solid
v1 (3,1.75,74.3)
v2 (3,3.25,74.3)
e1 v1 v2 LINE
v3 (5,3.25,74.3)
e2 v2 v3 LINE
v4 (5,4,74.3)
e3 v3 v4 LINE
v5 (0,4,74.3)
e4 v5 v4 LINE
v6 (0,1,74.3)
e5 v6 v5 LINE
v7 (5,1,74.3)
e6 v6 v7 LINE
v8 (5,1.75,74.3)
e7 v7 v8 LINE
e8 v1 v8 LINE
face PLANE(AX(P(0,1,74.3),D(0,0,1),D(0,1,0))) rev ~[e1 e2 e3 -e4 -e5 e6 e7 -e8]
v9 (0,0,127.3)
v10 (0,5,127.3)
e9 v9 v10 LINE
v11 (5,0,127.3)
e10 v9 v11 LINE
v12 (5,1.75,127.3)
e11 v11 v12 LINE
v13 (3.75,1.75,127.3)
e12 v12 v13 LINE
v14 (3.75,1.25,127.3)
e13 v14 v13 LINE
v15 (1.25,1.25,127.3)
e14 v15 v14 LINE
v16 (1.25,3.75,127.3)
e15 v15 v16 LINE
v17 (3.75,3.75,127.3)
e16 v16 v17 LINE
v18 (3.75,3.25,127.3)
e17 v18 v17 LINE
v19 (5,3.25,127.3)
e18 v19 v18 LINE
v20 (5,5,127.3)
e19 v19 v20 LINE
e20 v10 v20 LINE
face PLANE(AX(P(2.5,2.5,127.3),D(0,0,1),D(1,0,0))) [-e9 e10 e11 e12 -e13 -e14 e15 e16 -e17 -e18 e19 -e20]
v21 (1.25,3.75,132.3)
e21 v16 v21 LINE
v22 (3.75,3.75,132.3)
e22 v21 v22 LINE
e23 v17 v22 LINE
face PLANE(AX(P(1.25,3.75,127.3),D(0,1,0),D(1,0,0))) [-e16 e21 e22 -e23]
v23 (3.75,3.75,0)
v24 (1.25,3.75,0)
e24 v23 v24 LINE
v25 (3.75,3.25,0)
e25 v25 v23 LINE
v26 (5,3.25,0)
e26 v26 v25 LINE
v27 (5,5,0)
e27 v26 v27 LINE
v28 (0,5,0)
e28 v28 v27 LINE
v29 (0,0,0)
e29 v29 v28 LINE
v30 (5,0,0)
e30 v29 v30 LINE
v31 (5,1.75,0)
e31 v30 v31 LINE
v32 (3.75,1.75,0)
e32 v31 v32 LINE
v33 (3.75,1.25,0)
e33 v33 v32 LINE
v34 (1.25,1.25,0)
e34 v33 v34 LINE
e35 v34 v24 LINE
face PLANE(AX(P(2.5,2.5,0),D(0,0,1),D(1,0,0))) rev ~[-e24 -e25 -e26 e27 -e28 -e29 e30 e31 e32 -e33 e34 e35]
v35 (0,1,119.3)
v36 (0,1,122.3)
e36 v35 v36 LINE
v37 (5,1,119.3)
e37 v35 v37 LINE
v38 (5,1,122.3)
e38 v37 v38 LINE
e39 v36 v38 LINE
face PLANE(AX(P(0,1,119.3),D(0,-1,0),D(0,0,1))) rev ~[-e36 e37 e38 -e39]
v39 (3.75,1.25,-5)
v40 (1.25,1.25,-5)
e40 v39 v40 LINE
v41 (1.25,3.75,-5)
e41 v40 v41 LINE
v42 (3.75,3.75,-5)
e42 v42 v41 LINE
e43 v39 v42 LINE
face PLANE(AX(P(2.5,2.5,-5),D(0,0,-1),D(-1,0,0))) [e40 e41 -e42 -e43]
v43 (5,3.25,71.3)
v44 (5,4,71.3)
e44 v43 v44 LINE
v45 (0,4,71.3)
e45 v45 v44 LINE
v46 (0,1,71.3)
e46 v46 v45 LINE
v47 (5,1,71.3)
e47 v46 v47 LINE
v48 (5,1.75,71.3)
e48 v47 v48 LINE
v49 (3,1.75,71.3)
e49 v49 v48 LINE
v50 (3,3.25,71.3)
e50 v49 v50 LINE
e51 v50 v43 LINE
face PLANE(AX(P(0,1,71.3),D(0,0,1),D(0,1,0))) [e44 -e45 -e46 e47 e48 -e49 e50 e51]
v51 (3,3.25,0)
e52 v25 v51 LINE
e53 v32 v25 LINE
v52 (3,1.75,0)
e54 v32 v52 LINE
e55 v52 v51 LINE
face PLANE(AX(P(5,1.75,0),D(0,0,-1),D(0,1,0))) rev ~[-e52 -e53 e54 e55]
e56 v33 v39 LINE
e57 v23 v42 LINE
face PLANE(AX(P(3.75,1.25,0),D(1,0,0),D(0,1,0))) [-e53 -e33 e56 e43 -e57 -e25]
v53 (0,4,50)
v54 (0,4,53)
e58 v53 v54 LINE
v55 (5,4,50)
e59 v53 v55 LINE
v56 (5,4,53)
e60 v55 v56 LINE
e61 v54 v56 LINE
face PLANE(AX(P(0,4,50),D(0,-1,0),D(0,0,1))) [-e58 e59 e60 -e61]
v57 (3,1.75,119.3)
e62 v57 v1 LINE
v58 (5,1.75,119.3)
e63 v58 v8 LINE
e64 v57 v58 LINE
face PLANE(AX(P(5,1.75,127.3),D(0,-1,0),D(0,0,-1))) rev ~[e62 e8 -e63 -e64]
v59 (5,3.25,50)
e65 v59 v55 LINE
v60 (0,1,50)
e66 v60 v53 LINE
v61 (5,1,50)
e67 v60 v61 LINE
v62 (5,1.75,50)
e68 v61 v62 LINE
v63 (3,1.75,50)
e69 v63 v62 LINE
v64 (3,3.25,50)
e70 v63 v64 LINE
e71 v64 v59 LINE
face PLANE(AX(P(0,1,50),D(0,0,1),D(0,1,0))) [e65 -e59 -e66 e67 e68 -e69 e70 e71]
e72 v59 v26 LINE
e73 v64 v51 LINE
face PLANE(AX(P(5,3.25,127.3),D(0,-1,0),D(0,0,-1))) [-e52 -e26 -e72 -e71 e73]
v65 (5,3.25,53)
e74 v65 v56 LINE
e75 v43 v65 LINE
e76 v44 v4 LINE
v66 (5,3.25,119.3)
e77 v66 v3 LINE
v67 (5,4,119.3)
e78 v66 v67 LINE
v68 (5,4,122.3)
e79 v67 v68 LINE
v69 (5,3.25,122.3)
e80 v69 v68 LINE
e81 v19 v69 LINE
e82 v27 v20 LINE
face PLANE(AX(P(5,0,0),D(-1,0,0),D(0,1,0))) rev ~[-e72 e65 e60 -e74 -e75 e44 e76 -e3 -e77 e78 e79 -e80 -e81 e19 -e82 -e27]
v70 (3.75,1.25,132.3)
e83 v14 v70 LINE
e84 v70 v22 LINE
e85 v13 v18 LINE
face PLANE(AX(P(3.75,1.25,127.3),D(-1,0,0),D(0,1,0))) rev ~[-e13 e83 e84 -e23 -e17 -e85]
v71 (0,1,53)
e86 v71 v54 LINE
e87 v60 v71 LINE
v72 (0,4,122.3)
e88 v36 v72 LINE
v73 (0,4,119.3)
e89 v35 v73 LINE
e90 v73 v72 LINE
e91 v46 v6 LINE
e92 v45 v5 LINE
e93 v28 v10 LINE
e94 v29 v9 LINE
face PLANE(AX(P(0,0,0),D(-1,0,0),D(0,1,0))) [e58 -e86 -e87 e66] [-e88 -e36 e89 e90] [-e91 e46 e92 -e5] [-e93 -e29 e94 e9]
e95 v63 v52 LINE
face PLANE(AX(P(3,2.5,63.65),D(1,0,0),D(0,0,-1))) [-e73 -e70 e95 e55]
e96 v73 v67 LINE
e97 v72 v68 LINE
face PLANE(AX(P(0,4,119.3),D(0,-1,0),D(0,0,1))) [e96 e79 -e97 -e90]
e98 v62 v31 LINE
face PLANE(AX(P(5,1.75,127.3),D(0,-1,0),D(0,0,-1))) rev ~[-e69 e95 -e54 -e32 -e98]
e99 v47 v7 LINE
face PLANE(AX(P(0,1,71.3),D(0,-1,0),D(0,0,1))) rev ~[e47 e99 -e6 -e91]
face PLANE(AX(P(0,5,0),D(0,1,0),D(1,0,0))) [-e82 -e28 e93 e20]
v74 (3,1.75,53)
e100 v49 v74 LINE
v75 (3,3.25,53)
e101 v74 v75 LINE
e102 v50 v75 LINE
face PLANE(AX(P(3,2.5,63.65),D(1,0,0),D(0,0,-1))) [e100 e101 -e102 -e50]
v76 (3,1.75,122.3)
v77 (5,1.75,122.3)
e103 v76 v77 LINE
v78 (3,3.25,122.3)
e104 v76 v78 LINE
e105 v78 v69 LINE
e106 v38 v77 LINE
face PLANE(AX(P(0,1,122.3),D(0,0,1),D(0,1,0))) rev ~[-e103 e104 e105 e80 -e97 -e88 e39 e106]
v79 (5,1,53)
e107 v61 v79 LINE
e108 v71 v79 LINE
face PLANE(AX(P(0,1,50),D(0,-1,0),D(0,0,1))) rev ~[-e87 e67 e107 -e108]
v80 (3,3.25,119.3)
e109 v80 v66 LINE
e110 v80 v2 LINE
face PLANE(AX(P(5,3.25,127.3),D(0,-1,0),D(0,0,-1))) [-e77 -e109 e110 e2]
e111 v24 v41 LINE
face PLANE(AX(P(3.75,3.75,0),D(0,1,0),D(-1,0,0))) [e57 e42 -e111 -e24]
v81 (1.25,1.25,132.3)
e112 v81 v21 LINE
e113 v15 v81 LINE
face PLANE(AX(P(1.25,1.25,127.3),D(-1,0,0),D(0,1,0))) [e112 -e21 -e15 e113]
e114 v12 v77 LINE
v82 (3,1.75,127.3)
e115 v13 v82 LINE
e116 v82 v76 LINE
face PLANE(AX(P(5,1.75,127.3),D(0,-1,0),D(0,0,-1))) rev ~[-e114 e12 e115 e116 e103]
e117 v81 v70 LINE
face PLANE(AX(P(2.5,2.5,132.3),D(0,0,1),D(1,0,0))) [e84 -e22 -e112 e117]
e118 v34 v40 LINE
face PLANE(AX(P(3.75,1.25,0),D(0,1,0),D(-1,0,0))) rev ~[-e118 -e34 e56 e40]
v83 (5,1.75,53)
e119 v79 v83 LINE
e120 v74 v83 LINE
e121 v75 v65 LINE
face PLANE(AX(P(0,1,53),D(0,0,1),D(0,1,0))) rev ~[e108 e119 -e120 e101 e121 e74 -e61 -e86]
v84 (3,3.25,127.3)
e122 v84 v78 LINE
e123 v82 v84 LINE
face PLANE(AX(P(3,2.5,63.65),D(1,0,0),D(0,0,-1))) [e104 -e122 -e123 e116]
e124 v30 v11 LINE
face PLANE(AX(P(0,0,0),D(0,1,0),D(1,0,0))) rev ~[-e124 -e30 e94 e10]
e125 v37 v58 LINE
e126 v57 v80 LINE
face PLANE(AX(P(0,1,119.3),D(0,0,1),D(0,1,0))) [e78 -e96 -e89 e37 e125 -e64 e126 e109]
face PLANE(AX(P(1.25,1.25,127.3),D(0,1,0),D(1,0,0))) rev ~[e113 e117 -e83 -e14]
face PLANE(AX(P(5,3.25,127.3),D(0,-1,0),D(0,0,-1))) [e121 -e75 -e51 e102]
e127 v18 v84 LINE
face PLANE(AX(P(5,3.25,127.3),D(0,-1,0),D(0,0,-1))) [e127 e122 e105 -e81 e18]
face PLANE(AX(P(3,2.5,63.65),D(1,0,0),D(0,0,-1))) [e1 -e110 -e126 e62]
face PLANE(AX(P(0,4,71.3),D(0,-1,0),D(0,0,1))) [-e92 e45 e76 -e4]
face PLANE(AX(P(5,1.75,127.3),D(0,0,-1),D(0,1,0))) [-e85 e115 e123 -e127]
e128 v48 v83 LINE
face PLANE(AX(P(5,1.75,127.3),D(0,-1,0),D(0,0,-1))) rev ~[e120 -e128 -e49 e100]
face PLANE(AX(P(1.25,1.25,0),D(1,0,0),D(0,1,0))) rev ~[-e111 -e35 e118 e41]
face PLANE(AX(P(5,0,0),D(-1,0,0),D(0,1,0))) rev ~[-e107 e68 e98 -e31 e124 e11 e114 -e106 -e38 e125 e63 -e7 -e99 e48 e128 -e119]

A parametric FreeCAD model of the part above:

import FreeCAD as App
import Part
import Sketcher
from FreeCAD import Vector

doc = App.newDocument("Part")
body = doc.addObject("PartDesign::Body", "Body")

# Sketch on XY plane
sketch1 = doc.addObject("Sketcher::SketchObject", "Sketch")
body.addObject(sketch1)
sketch1.AttachmentSupport = (doc.XY_Plane, [""])
sketch1.MapMode = "FlatFace"
sketch1.addGeometry(Part.LineSegment(Vector(0, 5, 0), Vector(0, 0, 0)), False)
sketch1.addGeometry(Part.LineSegment(Vector(0, 0, 0), Vector(5, 0, 0)), False)
sketch1.addGeometry(Part.LineSegment(Vector(5, 0, 0), Vector(5, 5, 0)), False)
sketch1.addGeometry(Part.LineSegment(Vector(5, 5, 0), Vector(0, 5, 0)), False)
sketch1.addConstraint(Sketcher.Constraint("Coincident", 0, 2, 1, 1))
sketch1.addConstraint(Sketcher.Constraint("Coincident", 1, 2, 2, 1))
sketch1.addConstraint(Sketcher.Constraint("Coincident", 2, 2, 3, 1))
sketch1.addConstraint(Sketcher.Constraint("Coincident", 3, 2, 0, 1))
sketch1.addConstraint(Sketcher.Constraint("Vertical", 0))
sketch1.addConstraint(Sketcher.Constraint("Horizontal", 1))
sketch1.addConstraint(Sketcher.Constraint("Vertical", 2))
sketch1.addConstraint(Sketcher.Constraint("Horizontal", 3))
sketch1.addConstraint(Sketcher.Constraint("Coincident", 0, 2, -1, 1))
sketch1.addConstraint(Sketcher.Constraint("Equal", 3, 0))
sketch1.addConstraint(Sketcher.Constraint("DistanceX", 1, 1, 1, 2, 5.0))
pad1 = doc.addObject("PartDesign::Pad", "Pad")
body.addObject(pad1)
pad1.Profile = sketch1
pad1.Length = 127.3

# Sketch on XY plane
sketch2 = doc.addObject("Sketcher::SketchObject", "Sketch001")
body.addObject(sketch2)
sketch2.AttachmentSupport = (doc.XY_Plane, [""])
sketch2.MapMode = "FlatFace"
sketch2.addGeometry(Part.LineSegment(Vector(3.75, 3.75, 0), Vector(3.75, 1.25, 0)), False)
sketch2.addGeometry(Part.LineSegment(Vector(3.75, 1.25, 0), Vector(1.25, 1.25, 0)), False)
sketch2.addGeometry(Part.LineSegment(Vector(1.25, 1.25, 0), Vector(1.25, 3.75, 0)), False)
sketch2.addGeometry(Part.LineSegment(Vector(1.25, 3.75, 0), Vector(3.75, 3.75, 0)), False)
sketch2.addConstraint(Sketcher.Constraint("Coincident", 0, 2, 1, 1))
sketch2.addConstraint(Sketcher.Constraint("Coincident", 1, 2, 2, 1))
sketch2.addConstraint(Sketcher.Constraint("Coincident", 2, 2, 3, 1))
sketch2.addConstraint(Sketcher.Constraint("Coincident", 3, 2, 0, 1))
sketch2.addConstraint(Sketcher.Constraint("Vertical", 0))
sketch2.addConstraint(Sketcher.Constraint("Horizontal", 1))
sketch2.addConstraint(Sketcher.Constraint("Vertical", 2))
sketch2.addConstraint(Sketcher.Constraint("Horizontal", 3))
sketch2.addConstraint(Sketcher.Constraint("Equal", 3, 0))
sketch2.addConstraint(Sketcher.Constraint("DistanceX", 1, 2, 1, 1, 2.5))
sketch2.addConstraint(Sketcher.Constraint("DistanceX", -1, 1, 0, 2, 3.75))
sketch2.addConstraint(Sketcher.Constraint("DistanceY", -1, 1, 0, 2, 1.25))
pad2 = doc.addObject("PartDesign::Pad", "Pad001")
body.addObject(pad2)
pad2.Profile = sketch2
pad2.Length = 5
pad2.Reversed = True

# Sketch on XY plane
sketch3 = doc.addObject("Sketcher::SketchObject", "Sketch002")
body.addObject(sketch3)
sketch3.AttachmentSupport = (doc.XY_Plane, [""])
sketch3.MapMode = "FlatFace"
sketch3.AttachmentOffset = App.Placement(Vector(0, 0, 127.3), App.Rotation())
sketch3.addGeometry(Part.LineSegment(Vector(1.25, 3.75, 0), Vector(1.25, 1.25, 0)), False)
sketch3.addGeometry(Part.LineSegment(Vector(1.25, 1.25, 0), Vector(3.75, 1.25, 0)), False)
sketch3.addGeometry(Part.LineSegment(Vector(3.75, 1.25, 0), Vector(3.75, 3.75, 0)), False)
sketch3.addGeometry(Part.LineSegment(Vector(3.75, 3.75, 0), Vector(1.25, 3.75, 0)), False)
sketch3.addConstraint(Sketcher.Constraint("Coincident", 0, 2, 1, 1))
sketch3.addConstraint(Sketcher.Constraint("Coincident", 1, 2, 2, 1))
sketch3.addConstraint(Sketcher.Constraint("Coincident", 2, 2, 3, 1))
sketch3.addConstraint(Sketcher.Constraint("Coincident", 3, 2, 0, 1))
sketch3.addConstraint(Sketcher.Constraint("Vertical", 0))
sketch3.addConstraint(Sketcher.Constraint("Horizontal", 1))
sketch3.addConstraint(Sketcher.Constraint("Vertical", 2))
sketch3.addConstraint(Sketcher.Constraint("Horizontal", 3))
sketch3.addConstraint(Sketcher.Constraint("Equal", 3, 0))
sketch3.addConstraint(Sketcher.Constraint("DistanceX", 1, 1, 1, 2, 2.5))
sketch3.addConstraint(Sketcher.Constraint("DistanceX", -1, 1, 0, 2, 1.25))
sketch3.addConstraint(Sketcher.Constraint("DistanceY", -1, 1, 0, 2, 1.25))
pad3 = doc.addObject("PartDesign::Pad", "Pad002")
body.addObject(pad3)
pad3.Profile = sketch3
pad3.Length = 5

# Sketch on YZ plane
sketch4 = doc.addObject("Sketcher::SketchObject", "Sketch003")
body.addObject(sketch4)
sketch4.AttachmentSupport = (doc.YZ_Plane, [""])
sketch4.MapMode = "FlatFace"
sketch4.addGeometry(Part.LineSegment(Vector(4, 119.3, 0), Vector(1, 119.3, 0)), False)
sketch4.addGeometry(Part.LineSegment(Vector(1, 119.3, 0), Vector(1, 122.3, 0)), False)
sketch4.addGeometry(Part.LineSegment(Vector(1, 122.3, 0), Vector(4, 122.3, 0)), False)
sketch4.addGeometry(Part.LineSegment(Vector(4, 122.3, 0), Vector(4, 119.3, 0)), False)
sketch4.addGeometry(Part.LineSegment(Vector(4, 50, 0), Vector(1, 50, 0)), False)
sketch4.addGeometry(Part.LineSegment(Vector(1, 50, 0), Vector(1, 53, 0)), False)
sketch4.addGeometry(Part.LineSegment(Vector(1, 53, 0), Vector(4, 53, 0)), False)
sketch4.addGeometry(Part.LineSegment(Vector(4, 53, 0), Vector(4, 50, 0)), False)
sketch4.addGeometry(Part.LineSegment(Vector(4, 71.3, 0), Vector(1, 71.3, 0)), False)
sketch4.addGeometry(Part.LineSegment(Vector(1, 71.3, 0), Vector(1, 74.3, 0)), False)
sketch4.addGeometry(Part.LineSegment(Vector(1, 74.3, 0), Vector(4, 74.3, 0)), False)
sketch4.addGeometry(Part.LineSegment(Vector(4, 74.3, 0), Vector(4, 71.3, 0)), False)
sketch4.addConstraint(Sketcher.Constraint("Coincident", 0, 2, 1, 1))
sketch4.addConstraint(Sketcher.Constraint("Coincident", 1, 2, 2, 1))
sketch4.addConstraint(Sketcher.Constraint("Coincident", 2, 2, 3, 1))
sketch4.addConstraint(Sketcher.Constraint("Coincident", 3, 2, 0, 1))
sketch4.addConstraint(Sketcher.Constraint("Coincident", 4, 2, 5, 1))
sketch4.addConstraint(Sketcher.Constraint("Coincident", 5, 2, 6, 1))
sketch4.addConstraint(Sketcher.Constraint("Coincident", 6, 2, 7, 1))
sketch4.addConstraint(Sketcher.Constraint("Coincident", 7, 2, 4, 1))
sketch4.addConstraint(Sketcher.Constraint("Coincident", 8, 2, 9, 1))
sketch4.addConstraint(Sketcher.Constraint("Coincident", 9, 2, 10, 1))
sketch4.addConstraint(Sketcher.Constraint("Coincident", 10, 2, 11, 1))
sketch4.addConstraint(Sketcher.Constraint("Coincident", 11, 2, 8, 1))
sketch4.addConstraint(Sketcher.Constraint("Horizontal", 0))
sketch4.addConstraint(Sketcher.Constraint("Vertical", 1))
sketch4.addConstraint(Sketcher.Constraint("Horizontal", 2))
sketch4.addConstraint(Sketcher.Constraint("Vertical", 3))
sketch4.addConstraint(Sketcher.Constraint("Horizontal", 4))
sketch4.addConstraint(Sketcher.Constraint("Vertical", 5))
sketch4.addConstraint(Sketcher.Constraint("Horizontal", 6))
sketch4.addConstraint(Sketcher.Constraint("Vertical", 7))
sketch4.addConstraint(Sketcher.Constraint("Horizontal", 8))
sketch4.addConstraint(Sketcher.Constraint("Vertical", 9))
sketch4.addConstraint(Sketcher.Constraint("Horizontal", 10))
sketch4.addConstraint(Sketcher.Constraint("Vertical", 11))
sketch4.addConstraint(Sketcher.Constraint("Vertical", 1, 2, 4, 2))
sketch4.addConstraint(Sketcher.Constraint("Vertical", 3, 2, 6, 2))
sketch4.addConstraint(Sketcher.Constraint("Vertical", 5, 2, 8, 2))
sketch4.addConstraint(Sketcher.Constraint("Vertical", 7, 2, 10, 2))
sketch4.addConstraint(Sketcher.Constraint("Equal", 10, 1))
sketch4.addConstraint(Sketcher.Constraint("Equal", 3, 5))
sketch4.addConstraint(Sketcher.Constraint("Equal", 7, 9))
sketch4.addConstraint(Sketcher.Constraint("DistanceX", 0, 2, 0, 1, 3.0))
sketch4.addConstraint(Sketcher.Constraint("DistanceX", -1, 1, 0, 2, 1.0))
sketch4.addConstraint(Sketcher.Constraint("DistanceY", -1, 1, 4, 2, 50.0))
sketch4.addConstraint(Sketcher.Constraint("DistanceY", 8, 2, 0, 2, 48.0))
sketch4.addConstraint(Sketcher.Constraint("DistanceY", -1, 1, 0, 2, 119.3))
pocket1 = doc.addObject("PartDesign::Pocket", "Pocket")
body.addObject(pocket1)
pocket1.Profile = sketch4
pocket1.Length = 30
pocket1.Reversed = True

# Sketch on YZ plane
sketch5 = doc.addObject("Sketcher::SketchObject", "Sketch004")
body.addObject(sketch5)
sketch5.AttachmentSupport = (doc.YZ_Plane, [""])
sketch5.MapMode = "FlatFace"
sketch5.AttachmentOffset = App.Placement(Vector(0, 0, 5), App.Rotation())
sketch5.addGeometry(Part.LineSegment(Vector(3.25, 127.3, 0), Vector(1.75, 127.3, 0)), False)
sketch5.addGeometry(Part.LineSegment(Vector(1.75, 127.3, 0), Vector(1.75, 0, 0)), False)
sketch5.addGeometry(Part.LineSegment(Vector(1.75, 0, 0), Vector(3.25, 0, 0)), False)
sketch5.addGeometry(Part.LineSegment(Vector(3.25, 0, 0), Vector(3.25, 127.3, 0)), False)
sketch5.addConstraint(Sketcher.Constraint("Coincident", 0, 2, 1, 1))
sketch5.addConstraint(Sketcher.Constraint("Coincident", 1, 2, 2, 1))
sketch5.addConstraint(Sketcher.Constraint("Coincident", 2, 2, 3, 1))
sketch5.addConstraint(Sketcher.Constraint("Coincident", 3, 2, 0, 1))
sketch5.addConstraint(Sketcher.Constraint("Horizontal", 0))
sketch5.addConstraint(Sketcher.Constraint("Vertical", 1))
sketch5.addConstraint(Sketcher.Constraint("Horizontal", 2))
sketch5.addConstraint(Sketcher.Constraint("Vertical", 3))
sketch5.addConstraint(Sketcher.Constraint("PointOnObject", 1, 2, -1))
sketch5.addConstraint(Sketcher.Constraint("DistanceX", 0, 2, 0, 1, 1.5))
sketch5.addConstraint(Sketcher.Constraint("DistanceY", 1, 2, 1, 1, 127.3))
sketch5.addConstraint(Sketcher.Constraint("DistanceX", -1, 1, 0, 2, 1.75))
pocket2 = doc.addObject("PartDesign::Pocket", "Pocket001")
body.addObject(pocket2)
pocket2.Profile = sketch5
pocket2.Length = 2

doc.recompute()
